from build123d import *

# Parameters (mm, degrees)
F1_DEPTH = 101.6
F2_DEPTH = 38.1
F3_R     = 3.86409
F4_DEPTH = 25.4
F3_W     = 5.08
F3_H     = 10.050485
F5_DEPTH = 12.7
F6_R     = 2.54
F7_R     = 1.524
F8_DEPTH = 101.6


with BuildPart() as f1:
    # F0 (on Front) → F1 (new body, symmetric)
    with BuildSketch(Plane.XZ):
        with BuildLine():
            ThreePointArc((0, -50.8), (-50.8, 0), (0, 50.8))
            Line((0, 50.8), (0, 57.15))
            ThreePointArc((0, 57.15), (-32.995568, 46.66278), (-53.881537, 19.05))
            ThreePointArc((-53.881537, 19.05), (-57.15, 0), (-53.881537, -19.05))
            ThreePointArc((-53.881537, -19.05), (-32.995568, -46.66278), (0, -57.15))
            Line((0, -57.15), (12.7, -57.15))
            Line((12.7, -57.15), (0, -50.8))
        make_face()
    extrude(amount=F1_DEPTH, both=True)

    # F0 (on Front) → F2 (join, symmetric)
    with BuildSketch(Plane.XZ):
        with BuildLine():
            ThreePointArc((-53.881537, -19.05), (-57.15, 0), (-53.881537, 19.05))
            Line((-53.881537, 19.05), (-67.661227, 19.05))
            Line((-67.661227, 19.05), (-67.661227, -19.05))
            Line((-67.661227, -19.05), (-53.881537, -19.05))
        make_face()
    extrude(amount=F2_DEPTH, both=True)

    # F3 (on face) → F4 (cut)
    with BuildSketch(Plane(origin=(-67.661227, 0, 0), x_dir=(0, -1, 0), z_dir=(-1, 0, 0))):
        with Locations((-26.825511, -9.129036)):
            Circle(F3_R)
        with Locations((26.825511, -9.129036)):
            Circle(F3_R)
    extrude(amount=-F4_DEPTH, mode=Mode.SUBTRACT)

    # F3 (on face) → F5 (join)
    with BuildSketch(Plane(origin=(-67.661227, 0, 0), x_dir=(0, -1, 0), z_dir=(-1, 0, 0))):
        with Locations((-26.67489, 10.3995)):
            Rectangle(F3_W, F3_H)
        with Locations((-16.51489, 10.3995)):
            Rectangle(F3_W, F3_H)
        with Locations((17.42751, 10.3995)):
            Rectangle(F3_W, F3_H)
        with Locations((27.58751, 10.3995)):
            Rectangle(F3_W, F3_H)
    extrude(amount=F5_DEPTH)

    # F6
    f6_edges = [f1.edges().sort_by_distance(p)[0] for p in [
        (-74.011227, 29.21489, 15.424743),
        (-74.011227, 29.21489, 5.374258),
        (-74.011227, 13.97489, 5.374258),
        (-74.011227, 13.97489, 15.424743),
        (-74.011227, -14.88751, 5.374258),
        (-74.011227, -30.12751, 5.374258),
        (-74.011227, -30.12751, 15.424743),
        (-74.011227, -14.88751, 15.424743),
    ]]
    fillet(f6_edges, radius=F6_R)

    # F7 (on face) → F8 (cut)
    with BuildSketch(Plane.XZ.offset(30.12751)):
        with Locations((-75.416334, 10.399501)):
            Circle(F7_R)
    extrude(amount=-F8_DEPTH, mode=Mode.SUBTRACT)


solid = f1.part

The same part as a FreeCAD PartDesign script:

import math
import FreeCAD as App
import Part
import Sketcher

V = App.Vector
Q = App.Units.Quantity


def edges_at(feature, points):
    """Names of the edges that pass closest to the given points."""
    edges = feature.Shape.Edges
    near = lambda p: min(range(len(edges)), key=lambda i: edges[i].distToShape(Part.Vertex(*p))[0])
    return sorted({f"Edge{near(p) + 1}" for p in points})


def add_polygon(sketch, points):
    """Adds a closed chain of lines whose ends are joined by coincident constraints."""
    first, n = sketch.GeometryCount, len(points)
    for a, b in zip(points, points[1:] + points[:1]):
        sketch.addGeometry(Part.LineSegment(App.Vector(*a, 0), App.Vector(*b, 0)), False)
    for i in range(n):
        sketch.addConstraint(Sketcher.Constraint("Coincident", first + i, 2, first + (i + 1) % n, 1))

doc = App.newDocument("Part")
body = doc.addObject("PartDesign::Body", "Body")

# Sketch on XZ plane
sketch1 = body.newObject("Sketcher::SketchObject", "Sketch")
sketch1.AttachmentSupport = (doc.getObject("XZ_Plane"), [""])
sketch1.MapMode = "FlatFace"
sketch1.addGeometry(Part.ArcOfCircle(Part.Circle(V(0, 0, 0), V(0, 0, 1), 51), math.radians(90), math.radians(270)), False)
sketch1.addGeometry(Part.LineSegment(V(0, 51, 0), V(0, 57, 0)), False)
sketch1.addGeometry(Part.ArcOfCircle(Part.Circle(V(0, 0, 0), V(0, 0, 1), 57), math.radians(90), math.radians(161)), False)
sketch1.addGeometry(Part.ArcOfCircle(Part.Circle(V(0, 0, 0), V(0, 0, 1), 57), math.radians(161), math.radians(199)), False)
sketch1.addGeometry(Part.ArcOfCircle(Part.Circle(V(0, 0, 0), V(0, 0, 1), 57), math.radians(-161), math.radians(-90)), False)
sketch1.addGeometry(Part.LineSegment(V(0, -57, 0), V(13, -57, 0)), False)
sketch1.addGeometry(Part.LineSegment(V(13, -57, 0), V(0, -51, 0)), False)
sketch1.addConstraint(Sketcher.Constraint("Coincident", 0, 1, 1, 1))
sketch1.addConstraint(Sketcher.Constraint("Coincident", 1, 2, 2, 1))
sketch1.addConstraint(Sketcher.Constraint("Tangent", 2, 2, 3, 1))
sketch1.addConstraint(Sketcher.Constraint("Tangent", 3, 2, 4, 1))
sketch1.addConstraint(Sketcher.Constraint("Tangent", 4, 2, 5, 1))
sketch1.addConstraint(Sketcher.Constraint("Coincident", 5, 2, 6, 1))
sketch1.addConstraint(Sketcher.Constraint("Coincident", 6, 2, 0, 2))
sketch1.addConstraint(Sketcher.Constraint("Vertical", 1))
sketch1.addConstraint(Sketcher.Constraint("Horizontal", 5))
sketch1.addConstraint(Sketcher.Constraint("Coincident", 0, 3, -1, 1))
sketch1.addConstraint(Sketcher.Constraint("Coincident", 2, 3, -1, 1))
sketch1.addConstraint(Sketcher.Constraint("Coincident", 4, 3, -1, 1))
sketch1.addConstraint(Sketcher.Constraint("PointOnObject", 0, 1, -2))
sketch1.addConstraint(Sketcher.Constraint("PointOnObject", 6, 2, -2))
sketch1.addConstraint(Sketcher.Constraint("Vertical", 2, 2, 3, 2))
sketch1.addConstraint(Sketcher.Constraint("Radius", 0, Q("2 in")))
sketch1.addConstraint(Sketcher.Constraint("Radius", 2, Q("2.25 in")))
sketch1.addConstraint(Sketcher.Constraint("DistanceX", 5, 1, 5, 2, Q("0.5 in")))
sketch1.addConstraint(Sketcher.Constraint("DistanceY", 3, 2, 2, 2, Q("1.5 in")))
pad1 = body.newObject("PartDesign::Pad", "Pad")
pad1.Profile = sketch1
pad1.Length = Q("8 in")
pad1.Midplane = True

# Sketch on XZ plane
sketch2 = body.newObject("Sketcher::SketchObject", "Sketch001")
sketch2.AttachmentSupport = (doc.getObject("XZ_Plane"), [""])
sketch2.MapMode = "FlatFace"
sketch2.addGeometry(Part.ArcOfCircle(Part.Circle(V(0, 0, 0), V(0, 0, 1), 57), math.radians(161), math.radians(199)), False)
sketch2.addGeometry(Part.LineSegment(V(-54, 19, 0), V(-68, 19, 0)), False)
sketch2.addGeometry(Part.LineSegment(V(-68, 19, 0), V(-68, -19, 0)), False)
sketch2.addGeometry(Part.LineSegment(V(-68, -19, 0), V(-54, -19, 0)), False)
sketch2.addConstraint(Sketcher.Constraint("Coincident", 0, 1, 1, 1))
sketch2.addConstraint(Sketcher.Constraint("Coincident", 1, 2, 2, 1))
sketch2.addConstraint(Sketcher.Constraint("Coincident", 2, 2, 3, 1))
sketch2.addConstraint(Sketcher.Constraint("Coincident", 3, 2, 0, 2))
sketch2.addConstraint(Sketcher.Constraint("Horizontal", 1))
sketch2.addConstraint(Sketcher.Constraint("Vertical", 2))
sketch2.addConstraint(Sketcher.Constraint("Horizontal", 3))
sketch2.addConstraint(Sketcher.Constraint("Coincident", 0, 3, -1, 1))
sketch2.addConstraint(Sketcher.Constraint("Vertical", 0, 1, 3, 2))
sketch2.addConstraint(Sketcher.Constraint("Radius", 0, Q("2.2500002 in")))
sketch2.addConstraint(Sketcher.Constraint("DistanceY", 2, 2, 2, 1, Q("1.5 in")))
sketch2.addConstraint(Sketcher.Constraint("DistanceX", 1, 2, 1, 1, Q("13.77969 mm")))
pad2 = body.newObject("PartDesign::Pad", "Pad001")
pad2.Profile = sketch2
pad2.Length = Q("3 in")
pad2.Midplane = True

# Sketch on YZ plane
sketch3 = body.newObject("Sketcher::SketchObject", "Sketch002")
sketch3.AttachmentSupport = (doc.getObject("YZ_Plane"), [""])
sketch3.MapMode = "FlatFace"
sketch3.AttachmentOffset = App.Placement(V(0, 0, -67.661227), App.Rotation())
sketch3.addGeometry(Part.Circle(V(26.8, -9.1, 0), V(0, 0, 1), 3.9), False)
sketch3.addGeometry(Part.Circle(V(-26.8, -9.1, 0), V(0, 0, 1), 3.9), False)
sketch3.addConstraint(Sketcher.Constraint("Equal", 0, 1))
sketch3.addConstraint(Sketcher.Constraint("Symmetric", 0, 3, 1, 3, -2))
sketch3.addConstraint(Sketcher.Constraint("Diameter", 0, Q("7.72818 mm")))
sketch3.addConstraint(Sketcher.Constraint("DistanceX", -1, 1, 0, 3, Q("26.825511 mm")))
sketch3.addConstraint(Sketcher.Constraint("DistanceY", 0, 3, -1, 1, Q("9.129036 mm")))
pocket1 = body.newObject("PartDesign::Pocket", "Pocket")
pocket1.Profile = sketch3
pocket1.Length = Q("1 in")
pocket1.Reversed = True

# Sketch on YZ plane
sketch4 = body.newObject("Sketcher::SketchObject", "Sketch003")
sketch4.AttachmentSupport = (doc.getObject("YZ_Plane"), [""])
sketch4.MapMode = "FlatFace"
sketch4.AttachmentOffset = App.Placement(V(0, 0, -67.661227), App.Rotation())
add_polygon(sketch4, [(29, 15), (29, 5), (24, 5), (24, 15)])  # lines 0-3
add_polygon(sketch4, [(19, 15), (19, 5), (14, 5), (14, 15)])  # lines 4-7
add_polygon(sketch4, [(-15, 15), (-15, 5), (-20, 5), (-20, 15)])  # lines 8-11
add_polygon(sketch4, [(-25, 15), (-25, 5), (-30, 5), (-30, 15)])  # lines 12-15
sketch4.addConstraint(Sketcher.Constraint("Vertical", 0))
sketch4.addConstraint(Sketcher.Constraint("Horizontal", 1))
sketch4.addConstraint(Sketcher.Constraint("Vertical", 2))
sketch4.addConstraint(Sketcher.Constraint("Horizontal", 3))
sketch4.addConstraint(Sketcher.Constraint("Vertical", 4))
sketch4.addConstraint(Sketcher.Constraint("Horizontal", 5))
sketch4.addConstraint(Sketcher.Constraint("Vertical", 6))
sketch4.addConstraint(Sketcher.Constraint("Horizontal", 7))
sketch4.addConstraint(Sketcher.Constraint("Vertical", 8))
sketch4.addConstraint(Sketcher.Constraint("Horizontal", 9))
sketch4.addConstraint(Sketcher.Constraint("Vertical", 10))
sketch4.addConstraint(Sketcher.Constraint("Horizontal", 11))
sketch4.addConstraint(Sketcher.Constraint("Vertical", 12))
sketch4.addConstraint(Sketcher.Constraint("Horizontal", 13))
sketch4.addConstraint(Sketcher.Constraint("Vertical", 14))
sketch4.addConstraint(Sketcher.Constraint("Horizontal", 15))
sketch4.addConstraint(Sketcher.Constraint("Horizontal", 1, 2, 4, 2))
sketch4.addConstraint(Sketcher.Constraint("Horizontal", 3, 2, 6, 2))
sketch4.addConstraint(Sketcher.Constraint("Horizontal", 5, 2, 8, 2))
sketch4.addConstraint(Sketcher.Constraint("Horizontal", 7, 2, 10, 2))
sketch4.addConstraint(Sketcher.Constraint("Horizontal", 9, 2, 12, 2))
sketch4.addConstraint(Sketcher.Constraint("Horizontal", 11, 2, 14, 2))
sketch4.addConstraint(Sketcher.Constraint("Equal", 3, 5))
sketch4.addConstraint(Sketcher.Constraint("Equal", 7, 9))
sketch4.addConstraint(Sketcher.Constraint("Equal", 11, 13))
sketch4.addConstraint(Sketcher.Constraint("DistanceX", 1, 2, 1, 1, Q("0.2 in")))
sketch4.addConstraint(Sketcher.Constraint("DistanceX", 4, 2, 1, 2, Q("0.2 in")))
sketch4.addConstraint(Sketcher.Constraint("DistanceX", 12, 2, 9, 2, Q("0.2 in")))
sketch4.addConstraint(Sketcher.Constraint("DistanceX", 8, 2, 5, 2, Q("28.8624 mm")))
sketch4.addConstraint(Sketcher.Constraint("DistanceY", 0, 2, 0, 1, Q("10.050485 mm")))
sketch4.addConstraint(Sketcher.Constraint("DistanceX", -1, 1, 0, 2, Q("29.21489 mm")))
sketch4.addConstraint(Sketcher.Constraint("DistanceY", -1, 1, 0, 2, Q("5.374257 mm")))
pad3 = body.newObject("PartDesign::Pad", "Pad002")
pad3.Profile = sketch4
pad3.Length = Q("0.5 in")
pad3.Reversed = True
doc.recompute()

fillet = body.newObject("PartDesign::Fillet", "Fillet")
fillet.Base = (pad3, edges_at(pad3, [
    (-74.011, 29.215, 15.425),
    (-74.011, 29.215, 5.374),
    (-74.011, 13.975, 5.374),
    (-74.011, 13.975, 15.425),
    (-74.011, -14.888, 5.374),
    (-74.011, -30.128, 5.374),
    (-74.011, -30.128, 15.425),
    (-74.011, -14.888, 15.425),
]))
fillet.Radius = Q("0.1 in")

# Sketch on XZ plane
sketch5 = body.newObject("Sketcher::SketchObject", "Sketch004")
sketch5.AttachmentSupport = (doc.getObject("XZ_Plane"), [""])
sketch5.MapMode = "FlatFace"
sketch5.AttachmentOffset = App.Placement(V(0, 0, 30.12751), App.Rotation())
sketch5.addGeometry(Part.Circle(V(-75.4, 10.4, 0), V(0, 0, 1), 1.5), False)
sketch5.addConstraint(Sketcher.Constraint("Diameter", 0, Q("0.12 in")))
sketch5.addConstraint(Sketcher.Constraint("DistanceY", -1, 1, 0, 3, Q("10.399501 mm")))
sketch5.addConstraint(Sketcher.Constraint("DistanceX", 0, 3, -1, 1, Q("75.416334 mm")))
pocket2 = body.newObject("PartDesign::Pocket", "Pocket001")
pocket2.Profile = sketch5
pocket2.Length = Q("4 in")

doc.recompute()
